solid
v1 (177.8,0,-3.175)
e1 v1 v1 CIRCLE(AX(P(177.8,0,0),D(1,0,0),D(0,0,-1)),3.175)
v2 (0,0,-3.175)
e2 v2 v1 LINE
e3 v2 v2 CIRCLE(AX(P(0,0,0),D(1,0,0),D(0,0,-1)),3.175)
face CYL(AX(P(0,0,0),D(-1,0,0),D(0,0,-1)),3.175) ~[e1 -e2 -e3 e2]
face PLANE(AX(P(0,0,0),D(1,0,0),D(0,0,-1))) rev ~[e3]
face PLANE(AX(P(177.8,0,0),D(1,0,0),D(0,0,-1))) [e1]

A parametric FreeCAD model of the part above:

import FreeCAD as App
import Part
import Sketcher
Q = App.Units.Quantity

doc = App.newDocument("Part")
params = doc.addObject("Spreadsheet::Sheet", "Params")
for row, (alias, value) in enumerate([
    ("sketch1_diameter", "0.25 in"),
    ("pad1_length", "7 in"),
], start=1):
    params.set(f"A{row}", alias)
    params.set(f"B{row}", "=" + value)
    params.setAlias(f"B{row}", alias)

body = doc.addObject("PartDesign::Body", "Body")

sketch1 = body.newObject("Sketcher::SketchObject", "Sketch")
sketch1.AttachmentSupport = (doc.getObject("YZ_Plane"), [""])
sketch1.MapMode = "FlatFace"
sketch1.addGeometry(Part.Circle(App.Vector(0, 0, 0), App.Vector(0, 0, 1), 3.175), False)
sketch1.addConstraint([
    Sketcher.Constraint("Coincident", 0, 3, -1, 1),
    Sketcher.Constraint("Diameter", 0, Q("0.25 in")),
])
sketch1.setExpression("Constraints[1]", "Params.sketch1_diameter")
pad1 = body.newObject("PartDesign::Pad", "Pad")
pad1.Profile = sketch1
pad1.setExpression("Length", "Params.pad1_length")

doc.recompute()
